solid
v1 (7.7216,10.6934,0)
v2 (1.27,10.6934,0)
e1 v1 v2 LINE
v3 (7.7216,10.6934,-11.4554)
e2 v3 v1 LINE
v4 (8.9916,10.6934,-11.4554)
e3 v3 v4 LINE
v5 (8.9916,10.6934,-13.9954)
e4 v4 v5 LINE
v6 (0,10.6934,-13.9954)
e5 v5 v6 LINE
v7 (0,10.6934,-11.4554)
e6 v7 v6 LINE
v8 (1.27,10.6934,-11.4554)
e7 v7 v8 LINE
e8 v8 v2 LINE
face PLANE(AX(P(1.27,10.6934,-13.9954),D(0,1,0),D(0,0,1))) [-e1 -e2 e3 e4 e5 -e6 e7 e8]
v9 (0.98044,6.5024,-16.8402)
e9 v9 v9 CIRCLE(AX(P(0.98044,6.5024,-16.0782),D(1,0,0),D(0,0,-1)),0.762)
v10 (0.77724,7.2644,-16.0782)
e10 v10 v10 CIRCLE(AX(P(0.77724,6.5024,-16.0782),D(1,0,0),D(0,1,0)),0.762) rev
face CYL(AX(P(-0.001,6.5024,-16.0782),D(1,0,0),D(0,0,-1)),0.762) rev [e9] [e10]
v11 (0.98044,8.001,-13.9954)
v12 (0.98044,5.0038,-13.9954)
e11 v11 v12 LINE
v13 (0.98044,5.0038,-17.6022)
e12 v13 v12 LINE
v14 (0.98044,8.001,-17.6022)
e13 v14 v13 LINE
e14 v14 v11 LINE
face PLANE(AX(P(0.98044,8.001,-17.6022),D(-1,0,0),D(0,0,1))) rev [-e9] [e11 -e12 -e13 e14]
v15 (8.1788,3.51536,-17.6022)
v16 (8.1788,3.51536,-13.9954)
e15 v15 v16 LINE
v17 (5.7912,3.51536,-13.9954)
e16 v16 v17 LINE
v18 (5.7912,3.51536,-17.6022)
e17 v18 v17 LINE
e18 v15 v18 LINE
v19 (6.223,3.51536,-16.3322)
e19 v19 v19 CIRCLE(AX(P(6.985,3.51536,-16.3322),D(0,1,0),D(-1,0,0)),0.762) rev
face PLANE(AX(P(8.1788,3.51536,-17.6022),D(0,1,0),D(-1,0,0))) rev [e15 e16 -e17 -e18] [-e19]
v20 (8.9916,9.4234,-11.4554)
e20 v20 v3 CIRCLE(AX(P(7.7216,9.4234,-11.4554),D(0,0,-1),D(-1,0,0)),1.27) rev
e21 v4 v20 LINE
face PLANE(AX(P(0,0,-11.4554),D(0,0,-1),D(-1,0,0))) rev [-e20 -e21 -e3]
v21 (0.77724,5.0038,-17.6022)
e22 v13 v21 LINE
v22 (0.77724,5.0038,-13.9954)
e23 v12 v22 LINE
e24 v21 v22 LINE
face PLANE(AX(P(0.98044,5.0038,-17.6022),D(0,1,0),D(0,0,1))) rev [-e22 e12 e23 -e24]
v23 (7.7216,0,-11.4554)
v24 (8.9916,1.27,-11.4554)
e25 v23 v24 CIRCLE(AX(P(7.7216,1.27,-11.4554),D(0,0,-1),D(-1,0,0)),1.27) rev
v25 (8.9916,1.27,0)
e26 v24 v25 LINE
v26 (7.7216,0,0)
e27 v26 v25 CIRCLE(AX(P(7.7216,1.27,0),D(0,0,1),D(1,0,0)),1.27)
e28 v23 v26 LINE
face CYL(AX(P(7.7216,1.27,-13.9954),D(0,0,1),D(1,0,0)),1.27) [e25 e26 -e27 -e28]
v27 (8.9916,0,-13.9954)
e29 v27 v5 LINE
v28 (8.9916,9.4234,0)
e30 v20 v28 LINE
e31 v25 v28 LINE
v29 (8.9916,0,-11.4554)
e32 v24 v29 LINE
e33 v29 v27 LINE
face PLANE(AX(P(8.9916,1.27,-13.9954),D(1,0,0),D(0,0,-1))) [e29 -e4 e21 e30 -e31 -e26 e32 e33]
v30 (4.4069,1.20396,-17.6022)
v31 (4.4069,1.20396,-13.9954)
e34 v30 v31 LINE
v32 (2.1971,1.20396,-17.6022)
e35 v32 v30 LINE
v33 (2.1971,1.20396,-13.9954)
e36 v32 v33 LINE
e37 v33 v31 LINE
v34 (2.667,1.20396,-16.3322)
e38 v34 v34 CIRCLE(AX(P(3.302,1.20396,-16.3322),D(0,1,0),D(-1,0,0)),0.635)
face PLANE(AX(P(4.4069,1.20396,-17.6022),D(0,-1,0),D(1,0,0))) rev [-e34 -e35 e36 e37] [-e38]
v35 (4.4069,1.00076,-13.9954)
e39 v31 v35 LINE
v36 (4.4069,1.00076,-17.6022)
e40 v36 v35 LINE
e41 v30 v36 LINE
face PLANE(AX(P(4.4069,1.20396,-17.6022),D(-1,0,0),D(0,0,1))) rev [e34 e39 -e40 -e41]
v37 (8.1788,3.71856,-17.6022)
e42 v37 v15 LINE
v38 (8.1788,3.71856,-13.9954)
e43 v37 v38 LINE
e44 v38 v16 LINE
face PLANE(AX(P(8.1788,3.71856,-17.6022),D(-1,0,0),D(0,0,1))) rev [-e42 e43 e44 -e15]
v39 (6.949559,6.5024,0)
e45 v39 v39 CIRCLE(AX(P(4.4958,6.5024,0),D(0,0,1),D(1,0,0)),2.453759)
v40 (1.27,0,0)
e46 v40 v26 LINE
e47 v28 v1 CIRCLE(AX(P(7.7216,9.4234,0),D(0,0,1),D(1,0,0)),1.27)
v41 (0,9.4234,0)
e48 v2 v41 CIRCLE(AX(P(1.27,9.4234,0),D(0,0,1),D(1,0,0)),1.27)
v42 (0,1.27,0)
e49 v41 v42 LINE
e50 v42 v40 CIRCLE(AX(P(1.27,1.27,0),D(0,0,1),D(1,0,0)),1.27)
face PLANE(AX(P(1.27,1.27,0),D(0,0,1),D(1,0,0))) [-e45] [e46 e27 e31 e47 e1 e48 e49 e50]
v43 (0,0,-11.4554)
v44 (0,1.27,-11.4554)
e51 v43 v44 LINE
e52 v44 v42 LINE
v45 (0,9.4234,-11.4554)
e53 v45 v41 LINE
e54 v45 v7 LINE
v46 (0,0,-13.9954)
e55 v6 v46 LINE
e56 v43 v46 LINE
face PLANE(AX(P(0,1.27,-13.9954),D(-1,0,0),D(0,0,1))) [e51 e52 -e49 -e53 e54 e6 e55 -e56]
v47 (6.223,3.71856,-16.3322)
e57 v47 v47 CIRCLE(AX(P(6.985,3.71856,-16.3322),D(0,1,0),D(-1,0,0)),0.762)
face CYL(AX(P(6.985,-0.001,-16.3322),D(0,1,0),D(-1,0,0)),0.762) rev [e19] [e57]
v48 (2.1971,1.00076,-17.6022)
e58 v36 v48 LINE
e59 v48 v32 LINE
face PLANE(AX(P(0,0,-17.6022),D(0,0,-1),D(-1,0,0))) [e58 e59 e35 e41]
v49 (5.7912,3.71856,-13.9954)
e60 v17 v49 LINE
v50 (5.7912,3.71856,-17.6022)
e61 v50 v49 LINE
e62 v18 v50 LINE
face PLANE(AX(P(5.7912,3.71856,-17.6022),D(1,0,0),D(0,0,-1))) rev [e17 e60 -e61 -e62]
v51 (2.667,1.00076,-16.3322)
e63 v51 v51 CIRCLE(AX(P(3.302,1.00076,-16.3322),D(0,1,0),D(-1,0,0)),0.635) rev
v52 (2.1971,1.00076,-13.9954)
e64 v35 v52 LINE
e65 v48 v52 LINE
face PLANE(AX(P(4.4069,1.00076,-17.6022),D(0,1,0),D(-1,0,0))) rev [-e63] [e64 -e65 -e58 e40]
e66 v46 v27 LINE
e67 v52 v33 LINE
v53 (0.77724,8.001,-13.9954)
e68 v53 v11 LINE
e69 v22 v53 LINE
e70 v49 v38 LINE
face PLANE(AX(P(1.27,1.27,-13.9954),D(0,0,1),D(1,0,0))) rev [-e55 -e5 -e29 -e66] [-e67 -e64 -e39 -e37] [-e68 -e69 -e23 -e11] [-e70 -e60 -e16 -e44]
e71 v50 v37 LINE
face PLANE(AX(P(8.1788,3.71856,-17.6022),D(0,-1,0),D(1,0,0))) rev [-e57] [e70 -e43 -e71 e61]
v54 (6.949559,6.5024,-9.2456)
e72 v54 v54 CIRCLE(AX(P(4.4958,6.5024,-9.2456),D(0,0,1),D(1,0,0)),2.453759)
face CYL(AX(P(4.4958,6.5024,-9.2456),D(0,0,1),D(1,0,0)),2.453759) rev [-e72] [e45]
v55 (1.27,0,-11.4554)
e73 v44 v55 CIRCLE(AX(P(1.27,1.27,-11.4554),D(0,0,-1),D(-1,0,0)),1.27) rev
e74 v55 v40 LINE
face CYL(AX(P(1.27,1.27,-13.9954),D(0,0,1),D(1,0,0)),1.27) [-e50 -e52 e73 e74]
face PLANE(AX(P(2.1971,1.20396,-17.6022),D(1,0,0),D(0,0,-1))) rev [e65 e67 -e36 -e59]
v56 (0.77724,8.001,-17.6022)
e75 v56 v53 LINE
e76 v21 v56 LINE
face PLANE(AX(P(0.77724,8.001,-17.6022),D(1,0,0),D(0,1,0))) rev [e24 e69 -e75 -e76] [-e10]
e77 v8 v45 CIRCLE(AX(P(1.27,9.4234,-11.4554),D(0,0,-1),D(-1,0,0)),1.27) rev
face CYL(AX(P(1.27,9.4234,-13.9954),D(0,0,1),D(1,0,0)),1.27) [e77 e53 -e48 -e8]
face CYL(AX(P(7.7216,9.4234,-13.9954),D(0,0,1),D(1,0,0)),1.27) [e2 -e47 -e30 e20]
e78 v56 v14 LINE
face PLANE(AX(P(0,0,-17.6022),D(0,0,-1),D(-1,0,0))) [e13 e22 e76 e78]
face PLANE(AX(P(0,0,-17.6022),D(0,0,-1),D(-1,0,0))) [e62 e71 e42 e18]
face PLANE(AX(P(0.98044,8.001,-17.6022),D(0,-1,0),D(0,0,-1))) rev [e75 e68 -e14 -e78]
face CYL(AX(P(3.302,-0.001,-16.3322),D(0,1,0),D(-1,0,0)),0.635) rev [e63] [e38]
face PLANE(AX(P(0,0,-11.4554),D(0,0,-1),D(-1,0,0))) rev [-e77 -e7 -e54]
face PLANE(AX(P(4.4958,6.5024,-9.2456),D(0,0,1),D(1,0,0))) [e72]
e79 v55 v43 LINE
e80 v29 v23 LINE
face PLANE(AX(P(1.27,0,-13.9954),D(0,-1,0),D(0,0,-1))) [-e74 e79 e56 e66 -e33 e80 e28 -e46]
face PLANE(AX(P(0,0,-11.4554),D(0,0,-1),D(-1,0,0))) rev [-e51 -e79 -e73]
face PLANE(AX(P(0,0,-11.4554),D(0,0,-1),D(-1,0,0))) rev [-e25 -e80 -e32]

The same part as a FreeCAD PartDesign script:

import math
import FreeCAD as App
import Part
import Sketcher
from FreeCAD import Vector
Q = App.Units.Quantity


def add_polygon(sketch, points):
    """Adds a closed chain of lines whose ends are joined by coincident constraints."""
    first, n = sketch.GeometryCount, len(points)
    for a, b in zip(points, points[1:] + points[:1]):
        sketch.addGeometry(Part.LineSegment(App.Vector(*a, 0), App.Vector(*b, 0)), False)
    for i in range(n):
        sketch.addConstraint(Sketcher.Constraint("Coincident", first + i, 2, first + (i + 1) % n, 1))

doc = App.newDocument("Part")
body = doc.addObject("PartDesign::Body", "Body")

sketch1 = body.newObject("Sketcher::SketchObject", "Sketch")
sketch1.AttachmentSupport = (doc.getObject("XY_Plane"), [""])
sketch1.MapMode = "FlatFace"
sketch1.addGeometry([
    Part.LineSegment(Vector(1.3, 0, 0), Vector(7.7, 0, 0)),
    Part.ArcOfCircle(Part.Circle(Vector(7.7, 1.3, 0), Vector(0, 0, 1), 1.3), math.radians(-90), math.radians(0)),
    Part.LineSegment(Vector(9, 1.3, 0), Vector(9, 9.4, 0)),
    Part.ArcOfCircle(Part.Circle(Vector(7.7, 9.4, 0), Vector(0, 0, 1), 1.3), math.radians(0), math.radians(90)),
    Part.LineSegment(Vector(7.7, 10.7, 0), Vector(1.3, 10.7, 0)),
    Part.ArcOfCircle(Part.Circle(Vector(1.3, 9.4, 0), Vector(0, 0, 1), 1.3), math.radians(90), math.radians(180)),
    Part.LineSegment(Vector(0, 9.4, 0), Vector(0, 1.3, 0)),
    Part.ArcOfCircle(Part.Circle(Vector(1.3, 1.3, 0), Vector(0, 0, 1), 1.3), math.radians(180), math.radians(270)),
], False)
sketch1.addConstraint([
    Sketcher.Constraint("Tangent", 0, 2, 1, 1),
    Sketcher.Constraint("Tangent", 1, 2, 2, 1),
    Sketcher.Constraint("Tangent", 2, 2, 3, 1),
    Sketcher.Constraint("Tangent", 3, 2, 4, 1),
    Sketcher.Constraint("Tangent", 4, 2, 5, 1),
    Sketcher.Constraint("Tangent", 5, 2, 6, 1),
    Sketcher.Constraint("Tangent", 6, 2, 7, 1),
    Sketcher.Constraint("Tangent", 7, 2, 0, 1),
    Sketcher.Constraint("Horizontal", 0),
    Sketcher.Constraint("Vertical", 2),
    Sketcher.Constraint("Horizontal", 4),
    Sketcher.Constraint("Vertical", 6),
    Sketcher.Constraint("Equal", 1, 3),
    Sketcher.Constraint("Equal", 3, 5),
    Sketcher.Constraint("Equal", 5, 7),
    Sketcher.Constraint("PointOnObject", 0, 2, -1),
    Sketcher.Constraint("PointOnObject", 5, 2, -2),
    Sketcher.Constraint("Radius", 1, Q("0.05 in")),
    Sketcher.Constraint("DistanceX", 0, 1, 0, 2, Q("0.254 in")),
    Sketcher.Constraint("DistanceY", 2, 1, 2, 2, Q("0.321 in")),
])
pad1 = body.newObject("PartDesign::Pad", "Pad")
pad1.Profile = sketch1
pad1.Length = Q("0.551 in")
pad1.Reversed = True

sketch2 = body.newObject("Sketcher::SketchObject", "Sketch001")
sketch2.AttachmentSupport = (doc.getObject("XY_Plane"), [""])
sketch2.MapMode = "FlatFace"
sketch2.addGeometry(Part.Circle(Vector(4.5, 6.5, 0), Vector(0, 0, 1), 2.5), False)
sketch2.addConstraint([
    Sketcher.Constraint("DistanceX", -1, 1, 0, 3, Q("0.177 in")),
    Sketcher.Constraint("DistanceY", -1, 1, 0, 3, Q("0.256 in")),
    Sketcher.Constraint("Diameter", 0, Q("4.907517 mm")),
])
pocket1 = body.newObject("PartDesign::Pocket", "Pocket")
pocket1.Profile = sketch2
pocket1.Length = Q("0.364 in")

sketch3 = body.newObject("Sketcher::SketchObject", "Sketch002")
sketch3.AttachmentSupport = (doc.getObject("XY_Plane"), [""])
sketch3.MapMode = "FlatFace"
sketch3.AttachmentOffset = App.Placement(Vector(0, 0, -0.551 * 25.4), App.Rotation())
add_polygon(sketch3, [(9, 11), (9, 0), (0, 0), (0, 11)])
sketch3.addConstraint([
    Sketcher.Constraint("Vertical", 0),
    Sketcher.Constraint("Horizontal", 1),
    Sketcher.Constraint("Vertical", 2),
    Sketcher.Constraint("Horizontal", 3),
    Sketcher.Constraint("Coincident", 1, 2, -1, 1),
    Sketcher.Constraint("DistanceX", 1, 2, 1, 1, Q("0.354 in")),
    Sketcher.Constraint("DistanceY", 0, 2, 0, 1, Q("0.421 in")),
])
pad2 = body.newObject("PartDesign::Pad", "Pad001")
pad2.Profile = sketch3
pad2.Length = Q("0.1 in")

sketch4 = body.newObject("Sketcher::SketchObject", "Sketch003")
sketch4.AttachmentSupport = (doc.getObject("XY_Plane"), [""])
sketch4.MapMode = "FlatFace"
sketch4.AttachmentOffset = App.Placement(Vector(0, 0, -0.551 * 25.4), App.Rotation())
add_polygon(sketch4, [(0.98, 8), (0.98, 5), (0.78, 5), (0.78, 8)])
add_polygon(sketch4, [(4.41, 1.2), (4.41, 1), (2.2, 1), (2.2, 1.2)])
add_polygon(sketch4, [(8.18, 3.72), (8.18, 3.52), (5.79, 3.52), (5.79, 3.72)])
sketch4.addConstraint([
    Sketcher.Constraint("Vertical", 0),
    Sketcher.Constraint("Horizontal", 1),
    Sketcher.Constraint("Vertical", 2),
    Sketcher.Constraint("Horizontal", 3),
    Sketcher.Constraint("Vertical", 4),
    Sketcher.Constraint("Horizontal", 5),
    Sketcher.Constraint("Vertical", 6),
    Sketcher.Constraint("Horizontal", 7),
    Sketcher.Constraint("Vertical", 8),
    Sketcher.Constraint("Horizontal", 9),
    Sketcher.Constraint("Vertical", 10),
    Sketcher.Constraint("Horizontal", 11),
    Sketcher.Constraint("Equal", 3, 4),
    Sketcher.Constraint("Equal", 6, 8),
    Sketcher.Constraint("DistanceX", 1, 2, 1, 1, Q("0.008 in")),
    Sketcher.Constraint("DistanceX", 5, 2, 5, 1, Q("0.087 in")),
    Sketcher.Constraint("DistanceX", 9, 2, 9, 1, Q("0.094 in")),
    Sketcher.Constraint("DistanceY", 0, 2, 0, 1, Q("0.118 in")),
    Sketcher.Constraint("DistanceY", -1, 1, 0, 2, Q("0.197 in")),
    Sketcher.Constraint("DistanceX", -1, 1, 8, 2, Q("0.322 in")),
    Sketcher.Constraint("DistanceY", 7, 2, 8, 2, Q("0.091 in")),
    Sketcher.Constraint("DistanceX", -1, 1, 0, 2, Q("0.0386 in")),
    Sketcher.Constraint("DistanceX", -1, 1, 4, 2, Q("0.1735 in")),
    Sketcher.Constraint("DistanceY", -1, 1, 4, 2, Q("0.0394 in")),
])
pad3 = body.newObject("PartDesign::Pad", "Pad002")
pad3.Profile = sketch4
pad3.Length = Q("0.142 in")
pad3.Reversed = True

sketch5 = body.newObject("Sketcher::SketchObject", "Sketch004")
sketch5.AttachmentSupport = (doc.getObject("YZ_Plane"), [""])
sketch5.MapMode = "FlatFace"
sketch5.AttachmentOffset = App.Placement(Vector(0, 0, 0.0386 * 25.4), App.Rotation())
sketch5.addGeometry(Part.Circle(Vector(6.5, -16.1, 0), Vector(0, 0, 1), 0.8), False)
sketch5.addConstraint([
    Sketcher.Constraint("Diameter", 0, Q("0.06 in")),
    Sketcher.Constraint("DistanceX", -1, 1, 0, 3, Q("0.256 in")),
    Sketcher.Constraint("DistanceY", 0, 3, -1, 1, Q("0.633 in")),
])
pocket2 = body.newObject("PartDesign::Pocket", "Pocket001")
pocket2.Profile = sketch5
pocket2.Type = "UpToFirst"

sketch6 = body.newObject("Sketcher::SketchObject", "Sketch005")
sketch6.AttachmentSupport = (doc.getObject("XZ_Plane"), [""])
sketch6.MapMode = "FlatFace"
sketch6.AttachmentOffset = App.Placement(Vector(0, 0, -0.1464 * 25.4), App.Rotation())
sketch6.addGeometry(Part.Circle(Vector(7, -16.3, 0), Vector(0, 0, 1), 0.8), False)
sketch6.addConstraint([
    Sketcher.Constraint("Diameter", 0, Q("0.06 in")),
    Sketcher.Constraint("DistanceX", -1, 1, 0, 3, Q("0.275 in")),
    Sketcher.Constraint("DistanceY", 0, 3, -1, 1, Q("0.643 in")),
])
pocket3 = body.newObject("PartDesign::Pocket", "Pocket002")
pocket3.Profile = sketch6
pocket3.Type = "UpToFirst"
pocket3.Reversed = True

sketch7 = body.newObject("Sketcher::SketchObject", "Sketch006")
sketch7.AttachmentSupport = (doc.getObject("XZ_Plane"), [""])
sketch7.MapMode = "FlatFace"
sketch7.AttachmentOffset = App.Placement(Vector(0, 0, -0.0474 * 25.4), App.Rotation())
sketch7.addGeometry(Part.Circle(Vector(3.3, -16.3, 0), Vector(0, 0, 1), 0.6), False)
sketch7.addConstraint([
    Sketcher.Constraint("Diameter", 0, Q("0.05 in")),
    Sketcher.Constraint("DistanceX", -1, 1, 0, 3, Q("0.13 in")),
    Sketcher.Constraint("DistanceY", 0, 3, -1, 1, Q("0.643 in")),
])
pocket4 = body.newObject("PartDesign::Pocket", "Pocket003")
pocket4.Profile = sketch7
pocket4.Type = "UpToFirst"
pocket4.Reversed = True

doc.recompute()
